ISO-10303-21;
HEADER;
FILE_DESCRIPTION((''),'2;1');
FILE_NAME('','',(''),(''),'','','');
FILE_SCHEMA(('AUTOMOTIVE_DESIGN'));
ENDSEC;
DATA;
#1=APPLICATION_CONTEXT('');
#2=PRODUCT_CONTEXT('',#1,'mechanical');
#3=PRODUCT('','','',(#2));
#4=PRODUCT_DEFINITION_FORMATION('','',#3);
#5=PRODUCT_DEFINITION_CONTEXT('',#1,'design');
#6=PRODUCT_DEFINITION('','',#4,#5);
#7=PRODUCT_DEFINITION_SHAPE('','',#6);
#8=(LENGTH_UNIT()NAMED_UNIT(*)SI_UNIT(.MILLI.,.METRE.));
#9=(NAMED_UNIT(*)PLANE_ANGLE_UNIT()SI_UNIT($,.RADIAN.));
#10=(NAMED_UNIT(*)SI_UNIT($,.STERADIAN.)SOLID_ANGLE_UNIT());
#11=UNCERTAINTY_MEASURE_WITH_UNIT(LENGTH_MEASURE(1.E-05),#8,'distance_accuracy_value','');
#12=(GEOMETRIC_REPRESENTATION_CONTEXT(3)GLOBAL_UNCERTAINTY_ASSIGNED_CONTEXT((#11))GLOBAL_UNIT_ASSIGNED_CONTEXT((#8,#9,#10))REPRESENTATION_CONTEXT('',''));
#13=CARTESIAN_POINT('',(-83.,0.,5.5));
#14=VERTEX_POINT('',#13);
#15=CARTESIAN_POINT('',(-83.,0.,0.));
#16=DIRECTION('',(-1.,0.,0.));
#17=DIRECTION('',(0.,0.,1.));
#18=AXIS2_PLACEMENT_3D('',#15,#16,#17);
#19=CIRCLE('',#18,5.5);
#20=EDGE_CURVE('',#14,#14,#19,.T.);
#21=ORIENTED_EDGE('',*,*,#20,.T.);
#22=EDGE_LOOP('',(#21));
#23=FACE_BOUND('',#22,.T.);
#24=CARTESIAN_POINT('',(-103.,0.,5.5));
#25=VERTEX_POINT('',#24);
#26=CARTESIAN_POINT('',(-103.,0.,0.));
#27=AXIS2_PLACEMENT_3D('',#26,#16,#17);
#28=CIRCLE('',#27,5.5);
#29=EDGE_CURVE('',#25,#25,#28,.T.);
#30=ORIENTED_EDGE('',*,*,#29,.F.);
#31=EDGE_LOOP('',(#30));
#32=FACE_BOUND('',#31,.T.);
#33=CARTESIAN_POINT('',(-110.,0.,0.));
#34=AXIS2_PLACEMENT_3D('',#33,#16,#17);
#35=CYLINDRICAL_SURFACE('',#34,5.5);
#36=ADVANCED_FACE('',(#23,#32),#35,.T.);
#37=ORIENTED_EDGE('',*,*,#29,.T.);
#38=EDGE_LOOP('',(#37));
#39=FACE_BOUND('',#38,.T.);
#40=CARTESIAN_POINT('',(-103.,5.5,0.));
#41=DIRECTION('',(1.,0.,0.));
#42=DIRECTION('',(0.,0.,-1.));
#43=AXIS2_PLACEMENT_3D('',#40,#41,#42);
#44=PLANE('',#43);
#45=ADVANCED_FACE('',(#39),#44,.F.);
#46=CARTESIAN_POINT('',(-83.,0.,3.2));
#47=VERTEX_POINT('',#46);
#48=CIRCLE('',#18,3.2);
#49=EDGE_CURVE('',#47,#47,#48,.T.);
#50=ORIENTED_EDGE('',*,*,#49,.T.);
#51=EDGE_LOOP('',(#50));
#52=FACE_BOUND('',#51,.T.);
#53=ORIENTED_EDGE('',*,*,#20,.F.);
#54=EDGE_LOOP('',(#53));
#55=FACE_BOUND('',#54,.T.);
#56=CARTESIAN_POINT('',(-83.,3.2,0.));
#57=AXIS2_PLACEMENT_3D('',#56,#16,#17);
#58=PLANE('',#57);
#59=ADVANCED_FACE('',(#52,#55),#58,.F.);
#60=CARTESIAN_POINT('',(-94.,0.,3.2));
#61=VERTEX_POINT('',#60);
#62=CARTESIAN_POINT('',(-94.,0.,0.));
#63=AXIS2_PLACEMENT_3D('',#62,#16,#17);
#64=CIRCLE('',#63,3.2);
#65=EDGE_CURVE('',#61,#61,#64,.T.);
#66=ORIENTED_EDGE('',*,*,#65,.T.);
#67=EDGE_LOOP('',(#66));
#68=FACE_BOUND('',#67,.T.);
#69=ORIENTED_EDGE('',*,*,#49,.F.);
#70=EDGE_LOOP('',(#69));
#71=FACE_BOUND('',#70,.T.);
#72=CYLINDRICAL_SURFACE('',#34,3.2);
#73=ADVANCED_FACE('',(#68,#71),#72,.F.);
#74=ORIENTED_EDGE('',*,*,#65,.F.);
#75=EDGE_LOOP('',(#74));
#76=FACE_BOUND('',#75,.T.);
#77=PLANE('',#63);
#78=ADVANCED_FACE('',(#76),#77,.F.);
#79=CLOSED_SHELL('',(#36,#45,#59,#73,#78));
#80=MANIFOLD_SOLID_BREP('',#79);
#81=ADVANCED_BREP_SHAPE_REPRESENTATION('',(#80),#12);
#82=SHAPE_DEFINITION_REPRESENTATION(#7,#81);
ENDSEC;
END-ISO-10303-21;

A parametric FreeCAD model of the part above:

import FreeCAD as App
import Part
import Sketcher

V = App.Vector
Q = App.Units.Quantity


def add_polygon(sketch, points):
    """Adds a closed chain of lines whose ends are joined by coincident constraints."""
    first, n = sketch.GeometryCount, len(points)
    for a, b in zip(points, points[1:] + points[:1]):
        sketch.addGeometry(Part.LineSegment(App.Vector(*a, 0), App.Vector(*b, 0)), False)
    for i in range(n):
        sketch.addConstraint(Sketcher.Constraint("Coincident", first + i, 2, first + (i + 1) % n, 1))

doc = App.newDocument("Part")
body = doc.addObject("PartDesign::Body", "Body")

# Sketch on XY plane
sketch1 = doc.addObject("Sketcher::SketchObject", "Sketch")
body.addObject(sketch1)
sketch1.AttachmentSupport = (doc.XY_Plane, [""])
sketch1.MapMode = "FlatFace"
add_polygon(sketch1, [(-103, 0), (-94, 0), (-94, 3.2), (-83, 3.2), (-83, 5.5), (-103, 5.5)])  # lines 0-5
sketch1.addConstraint([
    Sketcher.Constraint("Horizontal", 0),
    Sketcher.Constraint("Vertical", 1),
    Sketcher.Constraint("Horizontal", 2),
    Sketcher.Constraint("Vertical", 3),
    Sketcher.Constraint("Horizontal", 4),
    Sketcher.Constraint("Vertical", 5),
    Sketcher.Constraint("PointOnObject", 0, 2, -1),
    Sketcher.Constraint("DistanceX", 0, 1, 0, 2, Q("9 mm")),
    Sketcher.Constraint("DistanceX", 2, 1, 2, 2, Q("11 mm")),
    Sketcher.Constraint("DistanceY", 1, 1, 1, 2, Q("3.2 mm")),
    Sketcher.Constraint("DistanceY", 3, 1, 3, 2, Q("2.3 mm")),
    Sketcher.Constraint("DistanceX", 0, 2, -1, 1, Q("94 mm")),
])
revolution = doc.addObject("PartDesign::Revolution", "Revolution")
body.addObject(revolution)
revolution.Profile = sketch1
revolution.ReferenceAxis = (sketch1, ["H_Axis"])
revolution.Angle = 360

doc.recompute()
